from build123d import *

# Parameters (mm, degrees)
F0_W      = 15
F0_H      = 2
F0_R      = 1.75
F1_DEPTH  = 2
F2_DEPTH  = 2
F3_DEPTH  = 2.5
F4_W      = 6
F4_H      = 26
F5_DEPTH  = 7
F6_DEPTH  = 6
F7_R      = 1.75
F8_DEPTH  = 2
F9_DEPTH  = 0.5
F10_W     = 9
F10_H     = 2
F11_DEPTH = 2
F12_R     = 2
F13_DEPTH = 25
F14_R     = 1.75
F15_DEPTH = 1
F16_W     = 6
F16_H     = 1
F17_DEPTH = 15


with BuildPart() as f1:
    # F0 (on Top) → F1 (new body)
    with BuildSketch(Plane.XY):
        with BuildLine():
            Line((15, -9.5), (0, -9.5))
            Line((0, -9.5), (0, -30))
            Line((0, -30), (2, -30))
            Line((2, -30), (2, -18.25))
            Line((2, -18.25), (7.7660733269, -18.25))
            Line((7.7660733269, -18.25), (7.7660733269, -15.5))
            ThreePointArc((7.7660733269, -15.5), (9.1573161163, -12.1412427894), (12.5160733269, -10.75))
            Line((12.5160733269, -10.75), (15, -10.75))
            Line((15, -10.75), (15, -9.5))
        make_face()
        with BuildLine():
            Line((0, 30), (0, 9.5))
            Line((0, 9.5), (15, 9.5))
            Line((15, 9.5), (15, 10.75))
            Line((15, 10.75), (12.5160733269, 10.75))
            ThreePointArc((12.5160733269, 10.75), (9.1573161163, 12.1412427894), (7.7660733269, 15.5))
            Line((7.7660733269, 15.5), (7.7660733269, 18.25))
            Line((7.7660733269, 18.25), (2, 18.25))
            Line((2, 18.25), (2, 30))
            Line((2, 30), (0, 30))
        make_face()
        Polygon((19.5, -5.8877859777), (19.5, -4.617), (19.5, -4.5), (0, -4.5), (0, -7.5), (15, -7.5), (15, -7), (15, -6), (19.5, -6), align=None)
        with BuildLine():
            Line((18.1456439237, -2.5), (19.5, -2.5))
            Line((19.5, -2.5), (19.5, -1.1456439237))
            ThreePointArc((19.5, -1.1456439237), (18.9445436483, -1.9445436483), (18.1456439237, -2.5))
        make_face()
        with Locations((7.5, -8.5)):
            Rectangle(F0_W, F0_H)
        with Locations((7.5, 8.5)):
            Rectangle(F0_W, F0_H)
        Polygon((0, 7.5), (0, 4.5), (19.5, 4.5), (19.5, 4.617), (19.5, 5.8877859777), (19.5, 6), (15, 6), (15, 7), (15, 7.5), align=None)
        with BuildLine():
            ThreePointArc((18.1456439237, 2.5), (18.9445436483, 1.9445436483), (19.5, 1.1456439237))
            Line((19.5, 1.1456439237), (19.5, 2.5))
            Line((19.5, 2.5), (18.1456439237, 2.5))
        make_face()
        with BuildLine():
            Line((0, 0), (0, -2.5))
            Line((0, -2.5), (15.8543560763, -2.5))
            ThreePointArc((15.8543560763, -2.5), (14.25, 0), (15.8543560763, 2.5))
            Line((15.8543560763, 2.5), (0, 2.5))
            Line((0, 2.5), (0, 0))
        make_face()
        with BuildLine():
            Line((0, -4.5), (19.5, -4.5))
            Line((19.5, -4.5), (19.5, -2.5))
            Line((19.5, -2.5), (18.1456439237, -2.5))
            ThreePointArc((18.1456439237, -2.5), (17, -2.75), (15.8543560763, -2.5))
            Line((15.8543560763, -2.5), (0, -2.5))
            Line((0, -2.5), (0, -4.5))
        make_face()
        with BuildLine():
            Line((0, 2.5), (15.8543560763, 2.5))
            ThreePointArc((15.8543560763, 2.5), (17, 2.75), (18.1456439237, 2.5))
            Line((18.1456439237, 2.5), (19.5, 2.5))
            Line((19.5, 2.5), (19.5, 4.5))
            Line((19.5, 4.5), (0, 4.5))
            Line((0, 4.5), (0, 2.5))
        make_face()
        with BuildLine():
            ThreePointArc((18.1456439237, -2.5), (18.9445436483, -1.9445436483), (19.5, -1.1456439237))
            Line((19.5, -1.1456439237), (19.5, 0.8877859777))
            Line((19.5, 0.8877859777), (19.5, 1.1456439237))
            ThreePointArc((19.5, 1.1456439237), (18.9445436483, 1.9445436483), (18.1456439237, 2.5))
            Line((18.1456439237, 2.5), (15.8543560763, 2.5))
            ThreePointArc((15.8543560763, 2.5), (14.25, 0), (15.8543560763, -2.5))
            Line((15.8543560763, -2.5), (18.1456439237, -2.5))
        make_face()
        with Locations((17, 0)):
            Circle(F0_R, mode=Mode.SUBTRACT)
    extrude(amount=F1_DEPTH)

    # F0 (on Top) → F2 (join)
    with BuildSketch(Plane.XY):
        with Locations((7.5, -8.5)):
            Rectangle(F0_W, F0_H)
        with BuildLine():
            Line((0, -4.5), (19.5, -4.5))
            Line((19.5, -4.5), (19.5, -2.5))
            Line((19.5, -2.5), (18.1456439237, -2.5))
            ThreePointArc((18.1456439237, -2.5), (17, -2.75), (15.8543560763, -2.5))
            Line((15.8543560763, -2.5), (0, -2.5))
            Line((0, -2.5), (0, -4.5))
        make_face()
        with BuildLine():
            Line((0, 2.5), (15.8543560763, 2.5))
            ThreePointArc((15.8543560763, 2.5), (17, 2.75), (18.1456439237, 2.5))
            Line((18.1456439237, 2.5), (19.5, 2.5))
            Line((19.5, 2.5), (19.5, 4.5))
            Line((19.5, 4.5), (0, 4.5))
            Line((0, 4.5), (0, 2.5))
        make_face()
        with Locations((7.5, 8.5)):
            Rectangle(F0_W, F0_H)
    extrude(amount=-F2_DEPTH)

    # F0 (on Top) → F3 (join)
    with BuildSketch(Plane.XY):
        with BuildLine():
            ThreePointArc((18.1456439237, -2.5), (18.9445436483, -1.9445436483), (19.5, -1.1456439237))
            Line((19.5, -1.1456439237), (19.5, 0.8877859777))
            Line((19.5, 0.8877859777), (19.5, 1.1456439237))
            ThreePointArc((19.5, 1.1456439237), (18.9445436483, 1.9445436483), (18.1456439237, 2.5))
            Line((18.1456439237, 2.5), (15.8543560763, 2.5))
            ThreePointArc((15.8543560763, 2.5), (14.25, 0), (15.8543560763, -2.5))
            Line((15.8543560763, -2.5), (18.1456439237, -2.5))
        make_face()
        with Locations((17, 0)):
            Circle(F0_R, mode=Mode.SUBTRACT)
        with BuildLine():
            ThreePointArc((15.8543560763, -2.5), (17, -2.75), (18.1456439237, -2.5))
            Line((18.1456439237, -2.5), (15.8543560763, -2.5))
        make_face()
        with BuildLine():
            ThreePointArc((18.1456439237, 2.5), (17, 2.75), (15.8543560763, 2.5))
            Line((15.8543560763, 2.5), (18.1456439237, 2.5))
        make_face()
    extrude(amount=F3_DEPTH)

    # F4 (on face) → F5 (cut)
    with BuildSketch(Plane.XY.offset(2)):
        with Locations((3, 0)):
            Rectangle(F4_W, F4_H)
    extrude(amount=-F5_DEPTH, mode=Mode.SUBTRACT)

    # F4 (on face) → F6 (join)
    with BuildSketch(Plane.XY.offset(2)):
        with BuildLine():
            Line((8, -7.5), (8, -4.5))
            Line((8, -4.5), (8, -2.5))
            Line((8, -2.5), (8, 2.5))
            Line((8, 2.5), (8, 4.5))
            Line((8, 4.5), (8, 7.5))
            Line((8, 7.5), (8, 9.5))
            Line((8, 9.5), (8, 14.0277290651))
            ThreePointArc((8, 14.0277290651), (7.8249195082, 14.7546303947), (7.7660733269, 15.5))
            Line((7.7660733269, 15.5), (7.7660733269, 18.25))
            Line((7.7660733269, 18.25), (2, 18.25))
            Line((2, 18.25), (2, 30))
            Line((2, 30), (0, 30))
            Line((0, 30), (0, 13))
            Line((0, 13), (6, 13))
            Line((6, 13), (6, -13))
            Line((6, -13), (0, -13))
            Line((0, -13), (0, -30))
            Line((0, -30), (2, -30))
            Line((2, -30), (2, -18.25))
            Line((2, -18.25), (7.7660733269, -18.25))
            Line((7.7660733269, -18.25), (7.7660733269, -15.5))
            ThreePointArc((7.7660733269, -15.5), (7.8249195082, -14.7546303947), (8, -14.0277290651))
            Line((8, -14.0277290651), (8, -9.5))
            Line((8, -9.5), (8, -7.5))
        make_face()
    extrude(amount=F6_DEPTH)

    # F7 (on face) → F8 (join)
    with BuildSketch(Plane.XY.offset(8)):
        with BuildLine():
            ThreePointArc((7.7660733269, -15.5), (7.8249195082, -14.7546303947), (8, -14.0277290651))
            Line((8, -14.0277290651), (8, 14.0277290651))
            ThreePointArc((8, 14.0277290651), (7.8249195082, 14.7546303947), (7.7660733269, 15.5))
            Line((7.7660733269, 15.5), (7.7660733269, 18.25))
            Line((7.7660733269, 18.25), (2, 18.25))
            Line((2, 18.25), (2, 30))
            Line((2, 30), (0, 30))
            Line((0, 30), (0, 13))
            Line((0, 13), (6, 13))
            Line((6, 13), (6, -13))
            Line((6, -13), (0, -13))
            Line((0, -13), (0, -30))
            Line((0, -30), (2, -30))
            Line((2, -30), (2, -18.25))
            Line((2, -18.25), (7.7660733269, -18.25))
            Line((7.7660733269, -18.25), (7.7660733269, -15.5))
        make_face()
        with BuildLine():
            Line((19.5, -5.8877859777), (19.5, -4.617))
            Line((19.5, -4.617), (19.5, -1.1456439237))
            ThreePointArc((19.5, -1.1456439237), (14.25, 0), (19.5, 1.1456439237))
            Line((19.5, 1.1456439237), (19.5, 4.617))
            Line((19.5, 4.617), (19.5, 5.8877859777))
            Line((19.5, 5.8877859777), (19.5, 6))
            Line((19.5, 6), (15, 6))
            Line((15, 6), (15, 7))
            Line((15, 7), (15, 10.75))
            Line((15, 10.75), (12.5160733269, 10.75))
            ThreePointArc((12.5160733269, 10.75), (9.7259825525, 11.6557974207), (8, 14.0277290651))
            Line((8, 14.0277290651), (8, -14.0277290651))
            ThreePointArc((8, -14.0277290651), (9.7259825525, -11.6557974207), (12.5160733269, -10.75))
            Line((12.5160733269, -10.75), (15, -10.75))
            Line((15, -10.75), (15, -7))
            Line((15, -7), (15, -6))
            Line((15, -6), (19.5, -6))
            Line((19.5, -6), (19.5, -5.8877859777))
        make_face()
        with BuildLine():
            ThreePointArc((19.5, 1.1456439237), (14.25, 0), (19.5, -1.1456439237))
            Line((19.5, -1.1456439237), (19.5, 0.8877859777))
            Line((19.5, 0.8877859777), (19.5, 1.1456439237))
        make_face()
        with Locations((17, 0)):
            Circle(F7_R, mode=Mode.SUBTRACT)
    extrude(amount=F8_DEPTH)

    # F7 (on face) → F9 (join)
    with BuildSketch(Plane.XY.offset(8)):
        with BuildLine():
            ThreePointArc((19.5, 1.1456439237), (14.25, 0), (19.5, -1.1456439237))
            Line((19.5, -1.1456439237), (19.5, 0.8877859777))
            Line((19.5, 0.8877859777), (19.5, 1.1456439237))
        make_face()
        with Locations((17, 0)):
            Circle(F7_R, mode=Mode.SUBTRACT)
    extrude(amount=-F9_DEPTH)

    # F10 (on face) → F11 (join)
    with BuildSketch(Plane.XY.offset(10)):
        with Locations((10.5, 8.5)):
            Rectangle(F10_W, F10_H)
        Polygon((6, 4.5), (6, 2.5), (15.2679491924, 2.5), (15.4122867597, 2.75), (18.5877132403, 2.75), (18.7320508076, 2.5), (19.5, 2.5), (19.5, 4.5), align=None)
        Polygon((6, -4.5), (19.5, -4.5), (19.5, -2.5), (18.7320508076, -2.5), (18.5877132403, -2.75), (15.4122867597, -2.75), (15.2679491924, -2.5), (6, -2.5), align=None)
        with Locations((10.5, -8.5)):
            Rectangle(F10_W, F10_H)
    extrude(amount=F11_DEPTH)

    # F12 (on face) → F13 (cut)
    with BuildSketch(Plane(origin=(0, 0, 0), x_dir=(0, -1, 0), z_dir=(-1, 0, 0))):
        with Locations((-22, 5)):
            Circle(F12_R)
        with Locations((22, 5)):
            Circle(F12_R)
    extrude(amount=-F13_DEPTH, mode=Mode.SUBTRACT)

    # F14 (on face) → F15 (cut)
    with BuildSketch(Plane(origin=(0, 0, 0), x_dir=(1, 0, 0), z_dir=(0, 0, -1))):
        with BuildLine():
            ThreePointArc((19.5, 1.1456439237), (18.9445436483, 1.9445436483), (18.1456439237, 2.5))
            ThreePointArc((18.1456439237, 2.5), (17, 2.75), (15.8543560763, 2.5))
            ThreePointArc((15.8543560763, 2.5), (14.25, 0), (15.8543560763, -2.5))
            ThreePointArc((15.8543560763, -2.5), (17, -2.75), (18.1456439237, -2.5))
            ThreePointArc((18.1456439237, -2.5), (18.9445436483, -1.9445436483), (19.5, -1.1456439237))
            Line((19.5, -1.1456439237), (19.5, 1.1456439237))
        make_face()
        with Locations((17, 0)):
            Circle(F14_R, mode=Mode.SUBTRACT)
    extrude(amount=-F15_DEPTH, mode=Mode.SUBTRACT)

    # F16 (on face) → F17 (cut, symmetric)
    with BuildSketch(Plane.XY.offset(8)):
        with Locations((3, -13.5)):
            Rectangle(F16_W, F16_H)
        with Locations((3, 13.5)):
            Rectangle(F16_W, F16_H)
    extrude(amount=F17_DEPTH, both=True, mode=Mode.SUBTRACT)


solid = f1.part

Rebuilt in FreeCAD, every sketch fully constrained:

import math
import FreeCAD as App
import Part
import Sketcher
Q = App.Units.Quantity


def add_polygon(sketch, points):
    """Adds a closed chain of lines whose ends are joined by coincident constraints."""
    first, n = sketch.GeometryCount, len(points)
    for a, b in zip(points, points[1:] + points[:1]):
        sketch.addGeometry(Part.LineSegment(App.Vector(*a, 0), App.Vector(*b, 0)), False)
    for i in range(n):
        sketch.addConstraint(Sketcher.Constraint("Coincident", first + i, 2, first + (i + 1) % n, 1))

doc = App.newDocument("Part")
body = doc.addObject("PartDesign::Body", "Body")

# Sketch on XY plane
sketch1 = body.newObject("Sketcher::SketchObject", "Sketch")
sketch1.AttachmentSupport = (doc.getObject("XY_Plane"), [""])
sketch1.MapMode = "FlatFace"
sketch1.addGeometry(Part.LineSegment(App.Vector(0, 30, 0), App.Vector(0, -30, 0)), False)
sketch1.addGeometry(Part.LineSegment(App.Vector(0, -30, 0), App.Vector(2, -30, 0)), False)
sketch1.addGeometry(Part.LineSegment(App.Vector(2, -30, 0), App.Vector(2, -18.2, 0)), False)
sketch1.addGeometry(Part.LineSegment(App.Vector(2, -18.2, 0), App.Vector(7.8, -18.2, 0)), False)
sketch1.addGeometry(Part.LineSegment(App.Vector(7.8, -18.2, 0), App.Vector(7.8, -15.5, 0)), False)
sketch1.addGeometry(Part.ArcOfCircle(Part.Circle(App.Vector(12.5, -15.5, 0), App.Vector(0, 0, 1), 4.8), math.radians(90), math.radians(180)), False)
sketch1.addGeometry(Part.LineSegment(App.Vector(12.5, -10.8, 0), App.Vector(15, -10.8, 0)), False)
sketch1.addGeometry(Part.LineSegment(App.Vector(15, -10.8, 0), App.Vector(15, -6, 0)), False)
sketch1.addGeometry(Part.LineSegment(App.Vector(15, -6, 0), App.Vector(19.5, -6, 0)), False)
sketch1.addGeometry(Part.LineSegment(App.Vector(19.5, -6, 0), App.Vector(19.5, 6, 0)), False)
sketch1.addGeometry(Part.LineSegment(App.Vector(19.5, 6, 0), App.Vector(15, 6, 0)), False)
sketch1.addGeometry(Part.LineSegment(App.Vector(15, 6, 0), App.Vector(15, 10.8, 0)), False)
sketch1.addGeometry(Part.LineSegment(App.Vector(15, 10.8, 0), App.Vector(12.5, 10.8, 0)), False)
sketch1.addGeometry(Part.ArcOfCircle(Part.Circle(App.Vector(12.5, 15.5, 0), App.Vector(0, 0, 1), 4.8), math.radians(180), math.radians(270)), False)
sketch1.addGeometry(Part.LineSegment(App.Vector(7.8, 15.5, 0), App.Vector(7.8, 18.2, 0)), False)
sketch1.addGeometry(Part.LineSegment(App.Vector(7.8, 18.2, 0), App.Vector(2, 18.2, 0)), False)
sketch1.addGeometry(Part.LineSegment(App.Vector(2, 18.2, 0), App.Vector(2, 30, 0)), False)
sketch1.addGeometry(Part.LineSegment(App.Vector(2, 30, 0), App.Vector(0, 30, 0)), False)
sketch1.addGeometry(Part.ArcOfCircle(Part.Circle(App.Vector(17, 0, 0), App.Vector(0, 0, 1), 2.8), math.radians(-115), math.radians(-65)), False)
sketch1.addGeometry(Part.LineSegment(App.Vector(15.9, -2.5, 0), App.Vector(18.1, -2.5, 0)), False)
sketch1.addGeometry(Part.Circle(App.Vector(17, 0, 0), App.Vector(0, 0, 1), 1.8), False)
sketch1.addGeometry(Part.ArcOfCircle(Part.Circle(App.Vector(17, 0, 0), App.Vector(0, 0, 1), 2.8), math.radians(65), math.radians(115)), False)
sketch1.addGeometry(Part.LineSegment(App.Vector(18.1, 2.5, 0), App.Vector(15.9, 2.5, 0)), False)
sketch1.addConstraint(Sketcher.Constraint("Coincident", 0, 2, 1, 1))
sketch1.addConstraint(Sketcher.Constraint("Coincident", 1, 2, 2, 1))
sketch1.addConstraint(Sketcher.Constraint("Coincident", 2, 2, 3, 1))
sketch1.addConstraint(Sketcher.Constraint("Coincident", 3, 2, 4, 1))
sketch1.addConstraint(Sketcher.Constraint("Tangent", 4, 2, 5, 2))
sketch1.addConstraint(Sketcher.Constraint("Tangent", 5, 1, 6, 1))
sketch1.addConstraint(Sketcher.Constraint("Coincident", 6, 2, 7, 1))
sketch1.addConstraint(Sketcher.Constraint("Coincident", 7, 2, 8, 1))
sketch1.addConstraint(Sketcher.Constraint("Coincident", 8, 2, 9, 1))
sketch1.addConstraint(Sketcher.Constraint("Coincident", 9, 2, 10, 1))
sketch1.addConstraint(Sketcher.Constraint("Coincident", 10, 2, 11, 1))
sketch1.addConstraint(Sketcher.Constraint("Coincident", 11, 2, 12, 1))
sketch1.addConstraint(Sketcher.Constraint("Tangent", 12, 2, 13, 2))
sketch1.addConstraint(Sketcher.Constraint("Tangent", 13, 1, 14, 1))
sketch1.addConstraint(Sketcher.Constraint("Coincident", 14, 2, 15, 1))
sketch1.addConstraint(Sketcher.Constraint("Coincident", 15, 2, 16, 1))
sketch1.addConstraint(Sketcher.Constraint("Coincident", 16, 2, 17, 1))
sketch1.addConstraint(Sketcher.Constraint("Coincident", 17, 2, 0, 1))
sketch1.addConstraint(Sketcher.Constraint("Coincident", 18, 1, 19, 1))
sketch1.addConstraint(Sketcher.Constraint("Coincident", 19, 2, 18, 2))
sketch1.addConstraint(Sketcher.Constraint("Coincident", 21, 1, 22, 1))
sketch1.addConstraint(Sketcher.Constraint("Coincident", 22, 2, 21, 2))
sketch1.addConstraint(Sketcher.Constraint("Vertical", 0))
sketch1.addConstraint(Sketcher.Constraint("Horizontal", 1))
sketch1.addConstraint(Sketcher.Constraint("Vertical", 2))
sketch1.addConstraint(Sketcher.Constraint("Horizontal", 3))
sketch1.addConstraint(Sketcher.Constraint("Vertical", 4))
sketch1.addConstraint(Sketcher.Constraint("Horizontal", 6))
sketch1.addConstraint(Sketcher.Constraint("Vertical", 7))
sketch1.addConstraint(Sketcher.Constraint("Horizontal", 8))
sketch1.addConstraint(Sketcher.Constraint("Vertical", 9))
sketch1.addConstraint(Sketcher.Constraint("Horizontal", 10))
sketch1.addConstraint(Sketcher.Constraint("Vertical", 11))
sketch1.addConstraint(Sketcher.Constraint("Horizontal", 12))
sketch1.addConstraint(Sketcher.Constraint("Vertical", 14))
sketch1.addConstraint(Sketcher.Constraint("Horizontal", 15))
sketch1.addConstraint(Sketcher.Constraint("Vertical", 16))
sketch1.addConstraint(Sketcher.Constraint("Horizontal", 17))
sketch1.addConstraint(Sketcher.Constraint("Horizontal", 19))
sketch1.addConstraint(Sketcher.Constraint("Horizontal", 22))
sketch1.addConstraint(Sketcher.Constraint("Coincident", 20, 3, 18, 3))
sketch1.addConstraint(Sketcher.Constraint("Coincident", 21, 3, 18, 3))
sketch1.addConstraint(Sketcher.Constraint("Equal", 5, 13))
sketch1.addConstraint(Sketcher.Constraint("Equal", 18, 21))
sketch1.addConstraint(Sketcher.Constraint("Symmetric", 0, 2, 17, 2, -1, 1))
sketch1.addConstraint(Sketcher.Constraint("Symmetric", 5, 3, 13, 3, -1))
sketch1.addConstraint(Sketcher.Constraint("Symmetric", 7, 2, 10, 2, -1))
sketch1.addConstraint(Sketcher.Constraint("Symmetric", 2, 2, 15, 2, -1))
sketch1.addConstraint(Sketcher.Constraint("Symmetric", 19, 2, 21, 1, -1))
sketch1.addConstraint(Sketcher.Constraint("Diameter", 20, Q("3.5 mm")))
sketch1.addConstraint(Sketcher.Constraint("DistanceX", 1, 1, 1, 2, Q("2 mm")))
sketch1.addConstraint(Sketcher.Constraint("DistanceY", 0, 2, 0, 1, Q("60 mm")))
sketch1.addConstraint(Sketcher.Constraint("DistanceY", 9, 1, 9, 2, Q("12 mm")))
sketch1.addConstraint(Sketcher.Constraint("Radius", 5, Q("4.75 mm")))
sketch1.addConstraint(Sketcher.Constraint("Radius", 18, Q("2.75 mm")))
sketch1.addConstraint(Sketcher.Constraint("DistanceX", 8, 1, 8, 2, Q("4.5 mm")))
sketch1.addConstraint(Sketcher.Constraint("DistanceX", -1, 1, 18, 3, Q("17 mm")))
sketch1.addConstraint(Sketcher.Constraint("DistanceX", -1, 1, 6, 2, Q("15 mm")))
sketch1.addConstraint(Sketcher.Constraint("DistanceY", 5, 3, 13, 3, Q("31 mm")))
sketch1.addConstraint(Sketcher.Constraint("DistanceY", 2, 1, 2, 2, Q("11.75 mm")))
sketch1.addConstraint(Sketcher.Constraint("DistanceY", 18, 1, -1, 1, Q("2.5 mm")))
sketch1.addConstraint(Sketcher.Constraint("DistanceX", 3, 1, 3, 2, Q("5.766073 mm")))
pad1 = body.newObject("PartDesign::Pad", "Pad")
pad1.Profile = sketch1
pad1.Length = 2

# Sketch on XY plane
sketch2 = body.newObject("Sketcher::SketchObject", "Sketch001")
sketch2.AttachmentSupport = (doc.getObject("XY_Plane"), [""])
sketch2.MapMode = "FlatFace"
add_polygon(sketch2, [(0, -7.5), (0, -9.5), (15, -9.5), (15, -7.5)])  # lines 0-3
sketch2.addGeometry(Part.LineSegment(App.Vector(0, -4.5, 0), App.Vector(19.5, -4.5, 0)), False)  # 4
sketch2.addGeometry(Part.LineSegment(App.Vector(19.5, -4.5, 0), App.Vector(19.5, -2.5, 0)), False)  # 5
sketch2.addGeometry(Part.LineSegment(App.Vector(19.5, -2.5, 0), App.Vector(18.1, -2.5, 0)), False)  # 6
sketch2.addGeometry(Part.ArcOfCircle(Part.Circle(App.Vector(17, 0, 0), App.Vector(0, 0, 1), 2.8), math.radians(-115), math.radians(-65)), False)  # 7
sketch2.addGeometry(Part.LineSegment(App.Vector(15.9, -2.5, 0), App.Vector(0, -2.5, 0)), False)  # 8
sketch2.addGeometry(Part.LineSegment(App.Vector(0, -2.5, 0), App.Vector(0, -4.5, 0)), False)  # 9
sketch2.addGeometry(Part.LineSegment(App.Vector(0, 2.5, 0), App.Vector(15.9, 2.5, 0)), False)  # 10
sketch2.addGeometry(Part.ArcOfCircle(Part.Circle(App.Vector(17, 0, 0), App.Vector(0, 0, 1), 2.8), math.radians(65), math.radians(115)), False)  # 11
sketch2.addGeometry(Part.LineSegment(App.Vector(18.1, 2.5, 0), App.Vector(19.5, 2.5, 0)), False)  # 12
sketch2.addGeometry(Part.LineSegment(App.Vector(19.5, 2.5, 0), App.Vector(19.5, 4.5, 0)), False)  # 13
sketch2.addGeometry(Part.LineSegment(App.Vector(19.5, 4.5, 0), App.Vector(0, 4.5, 0)), False)  # 14
sketch2.addGeometry(Part.LineSegment(App.Vector(0, 4.5, 0), App.Vector(0, 2.5, 0)), False)  # 15
add_polygon(sketch2, [(0, 9.5), (0, 7.5), (15, 7.5), (15, 9.5)])  # lines 16-19
sketch2.addConstraint(Sketcher.Constraint("Coincident", 4, 2, 5, 1))
sketch2.addConstraint(Sketcher.Constraint("Coincident", 5, 2, 6, 1))
sketch2.addConstraint(Sketcher.Constraint("Coincident", 6, 2, 7, 2))
sketch2.addConstraint(Sketcher.Constraint("Coincident", 7, 1, 8, 1))
sketch2.addConstraint(Sketcher.Constraint("Coincident", 8, 2, 9, 1))
sketch2.addConstraint(Sketcher.Constraint("Coincident", 9, 2, 4, 1))
sketch2.addConstraint(Sketcher.Constraint("Coincident", 10, 2, 11, 2))
sketch2.addConstraint(Sketcher.Constraint("Coincident", 11, 1, 12, 1))
sketch2.addConstraint(Sketcher.Constraint("Coincident", 12, 2, 13, 1))
sketch2.addConstraint(Sketcher.Constraint("Coincident", 13, 2, 14, 1))
sketch2.addConstraint(Sketcher.Constraint("Coincident", 14, 2, 15, 1))
sketch2.addConstraint(Sketcher.Constraint("Coincident", 15, 2, 10, 1))
sketch2.addConstraint(Sketcher.Constraint("Vertical", 0))
sketch2.addConstraint(Sketcher.Constraint("Horizontal", 1))
sketch2.addConstraint(Sketcher.Constraint("Vertical", 2))
sketch2.addConstraint(Sketcher.Constraint("Horizontal", 3))
sketch2.addConstraint(Sketcher.Constraint("Horizontal", 4))
sketch2.addConstraint(Sketcher.Constraint("Vertical", 5))
sketch2.addConstraint(Sketcher.Constraint("Horizontal", 6))
sketch2.addConstraint(Sketcher.Constraint("Horizontal", 8))
sketch2.addConstraint(Sketcher.Constraint("Vertical", 9))
sketch2.addConstraint(Sketcher.Constraint("Horizontal", 10))
sketch2.addConstraint(Sketcher.Constraint("Horizontal", 12))
sketch2.addConstraint(Sketcher.Constraint("Vertical", 13))
sketch2.addConstraint(Sketcher.Constraint("Horizontal", 14))
sketch2.addConstraint(Sketcher.Constraint("Vertical", 15))
sketch2.addConstraint(Sketcher.Constraint("Vertical", 16))
sketch2.addConstraint(Sketcher.Constraint("Horizontal", 17))
sketch2.addConstraint(Sketcher.Constraint("Vertical", 18))
sketch2.addConstraint(Sketcher.Constraint("Horizontal", 19))
sketch2.addConstraint(Sketcher.Constraint("Coincident", 11, 3, 7, 3))
sketch2.addConstraint(Sketcher.Constraint("Equal", 7, 11))
sketch2.addConstraint(Sketcher.Constraint("Symmetric", 9, 2, 14, 2, -1, 1))
sketch2.addConstraint(Sketcher.Constraint("Symmetric", 3, 2, 16, 2, -1, 1))
sketch2.addConstraint(Sketcher.Constraint("Symmetric", 7, 1, 10, 2, -1))
sketch2.addConstraint(Sketcher.Constraint("Symmetric", 5, 2, 12, 2, -1))
sketch2.addConstraint(Sketcher.Constraint("Symmetric", 1, 2, 18, 2, -1))
sketch2.addConstraint(Sketcher.Constraint("PointOnObject", 0, 2, -2))
sketch2.addConstraint(Sketcher.Constraint("PointOnObject", 8, 2, -2))
sketch2.addConstraint(Sketcher.Constraint("Horizontal", 6, 2, 7, 1))
sketch2.addConstraint(Sketcher.Constraint("Equal", 2, 5))
sketch2.addConstraint(Sketcher.Constraint("DistanceX", 1, 1, 1, 2, Q("15 mm")))
sketch2.addConstraint(Sketcher.Constraint("DistanceY", 0, 2, 0, 1, Q("2 mm")))
sketch2.addConstraint(Sketcher.Constraint("Radius", 7, Q("2.75 mm")))
sketch2.addConstraint(Sketcher.Constraint("DistanceX", 4, 1, 4, 2, Q("19.5 mm")))
sketch2.addConstraint(Sketcher.Constraint("DistanceX", -1, 1, 7, 3, Q("17 mm")))
sketch2.addConstraint(Sketcher.Constraint("DistanceY", 2, 2, 4, 2, Q("3 mm")))
sketch2.addConstraint(Sketcher.Constraint("DistanceY", 7, 1, 10, 2, Q("5 mm")))
pad2 = body.newObject("PartDesign::Pad", "Pad001")
pad2.Profile = sketch2
pad2.Length = 2
pad2.Reversed = True

# Sketch on XY plane
sketch3 = body.newObject("Sketcher::SketchObject", "Sketch002")
sketch3.AttachmentSupport = (doc.getObject("XY_Plane"), [""])
sketch3.MapMode = "FlatFace"
sketch3.addGeometry(Part.ArcOfCircle(Part.Circle(App.Vector(17, 0, 0), App.Vector(0, 0, 1), 2.7), math.radians(-65), math.radians(-25)), False)
sketch3.addGeometry(Part.LineSegment(App.Vector(19.5, -1.1, 0), App.Vector(19.5, 1.1, 0)), False)
sketch3.addGeometry(Part.ArcOfCircle(Part.Circle(App.Vector(17, 0, 0), App.Vector(0, 0, 1), 2.7), math.radians(25), math.radians(65)), False)
sketch3.addGeometry(Part.ArcOfCircle(Part.Circle(App.Vector(17, 0, 0), App.Vector(0, 0, 1), 2.8), math.radians(65), math.radians(115)), False)
sketch3.addGeometry(Part.ArcOfCircle(Part.Circle(App.Vector(17, 0, 0), App.Vector(0, 0, 1), 2.8), math.radians(115), math.radians(245)), False)
sketch3.addGeometry(Part.ArcOfCircle(Part.Circle(App.Vector(17, 0, 0), App.Vector(0, 0, 1), 2.8), math.radians(-115), math.radians(-65)), False)
sketch3.addGeometry(Part.Circle(App.Vector(17, 0, 0), App.Vector(0, 0, 1), 1.8), False)
sketch3.addConstraint(Sketcher.Constraint("Coincident", 0, 2, 1, 1))
sketch3.addConstraint(Sketcher.Constraint("Coincident", 1, 2, 2, 1))
sketch3.addConstraint(Sketcher.Constraint("Tangent", 2, 2, 3, 1))
sketch3.addConstraint(Sketcher.Constraint("Tangent", 3, 2, 4, 1))
sketch3.addConstraint(Sketcher.Constraint("Tangent", 4, 2, 5, 1))
sketch3.addConstraint(Sketcher.Constraint("Tangent", 5, 2, 0, 1))
sketch3.addConstraint(Sketcher.Constraint("Vertical", 1))
sketch3.addConstraint(Sketcher.Constraint("Coincident", 2, 3, 0, 3))
sketch3.addConstraint(Sketcher.Constraint("Coincident", 4, 3, 0, 3))
sketch3.addConstraint(Sketcher.Constraint("Coincident", 6, 3, 0, 3))
sketch3.addConstraint(Sketcher.Constraint("Symmetric", 3, 2, 4, 2, -1))
sketch3.addConstraint(Sketcher.Constraint("Horizontal", 2, 2, 3, 2))
sketch3.addConstraint(Sketcher.Constraint("Horizontal", 4, 2, 5, 2))
sketch3.addConstraint(Sketcher.Constraint("Diameter", 6, Q("3.5 mm")))
sketch3.addConstraint(Sketcher.Constraint("Radius", 0, Q("2.75 mm")))
sketch3.addConstraint(Sketcher.Constraint("DistanceX", -1, 1, 0, 3, Q("17 mm")))
sketch3.addConstraint(Sketcher.Constraint("DistanceX", -1, 1, 0, 2, Q("19.5 mm")))
sketch3.addConstraint(Sketcher.Constraint("DistanceY", -1, 1, 2, 2, Q("2.5 mm")))
pad3 = body.newObject("PartDesign::Pad", "Pad002")
pad3.Profile = sketch3
pad3.Length = 2.5

# Sketch on XY plane
sketch4 = body.newObject("Sketcher::SketchObject", "Sketch003")
sketch4.AttachmentSupport = (doc.getObject("XY_Plane"), [""])
sketch4.MapMode = "FlatFace"
sketch4.AttachmentOffset = App.Placement(App.Vector(0, 0, 2), App.Rotation())
add_polygon(sketch4, [(0, 13), (0, -13), (6, -13), (6, 13)])  # lines 0-3
sketch4.addConstraint(Sketcher.Constraint("Vertical", 0))
sketch4.addConstraint(Sketcher.Constraint("Horizontal", 1))
sketch4.addConstraint(Sketcher.Constraint("Vertical", 2))
sketch4.addConstraint(Sketcher.Constraint("Horizontal", 3))
sketch4.addConstraint(Sketcher.Constraint("Symmetric", 0, 2, 3, 2, -1, 1))
sketch4.addConstraint(Sketcher.Constraint("DistanceX", 1, 1, 1, 2, Q("6 mm")))
sketch4.addConstraint(Sketcher.Constraint("DistanceY", 0, 2, 0, 1, Q("26 mm")))
pocket1 = body.newObject("PartDesign::Pocket", "Pocket")
pocket1.Profile = sketch4
pocket1.Length = 7

# Sketch on XY plane
sketch5 = body.newObject("Sketcher::SketchObject", "Sketch004")
sketch5.AttachmentSupport = (doc.getObject("XY_Plane"), [""])
sketch5.MapMode = "FlatFace"
sketch5.AttachmentOffset = App.Placement(App.Vector(0, 0, 2), App.Rotation())
sketch5.addGeometry(Part.ArcOfCircle(Part.Circle(App.Vector(12.5, 15.5, 0), App.Vector(0, 0, 1), 4.8), math.radians(-180), math.radians(-161.94)), False)
sketch5.addGeometry(Part.LineSegment(App.Vector(7.8, 15.5, 0), App.Vector(7.8, 18.2, 0)), False)
sketch5.addGeometry(Part.LineSegment(App.Vector(7.8, 18.2, 0), App.Vector(2, 18.2, 0)), False)
sketch5.addGeometry(Part.LineSegment(App.Vector(2, 18.2, 0), App.Vector(2, 30, 0)), False)
sketch5.addGeometry(Part.LineSegment(App.Vector(2, 30, 0), App.Vector(0, 30, 0)), False)
sketch5.addGeometry(Part.LineSegment(App.Vector(0, 30, 0), App.Vector(0, 13, 0)), False)
sketch5.addGeometry(Part.LineSegment(App.Vector(0, 13, 0), App.Vector(6, 13, 0)), False)
sketch5.addGeometry(Part.LineSegment(App.Vector(6, 13, 0), App.Vector(6, -13, 0)), False)
sketch5.addGeometry(Part.LineSegment(App.Vector(6, -13, 0), App.Vector(0, -13, 0)), False)
sketch5.addGeometry(Part.LineSegment(App.Vector(0, -13, 0), App.Vector(0, -30, 0)), False)
sketch5.addGeometry(Part.LineSegment(App.Vector(0, -30, 0), App.Vector(2, -30, 0)), False)
sketch5.addGeometry(Part.LineSegment(App.Vector(2, -30, 0), App.Vector(2, -18.2, 0)), False)
sketch5.addGeometry(Part.LineSegment(App.Vector(2, -18.2, 0), App.Vector(7.8, -18.2, 0)), False)
sketch5.addGeometry(Part.LineSegment(App.Vector(7.8, -18.2, 0), App.Vector(7.8, -15.5, 0)), False)
sketch5.addGeometry(Part.ArcOfCircle(Part.Circle(App.Vector(12.5, -15.5, 0), App.Vector(0, 0, 1), 4.8), math.radians(161.94), math.radians(180)), False)
sketch5.addGeometry(Part.LineSegment(App.Vector(8, -14, 0), App.Vector(8, 14, 0)), False)
sketch5.addConstraint(Sketcher.Constraint("Tangent", 0, 1, 1, 1))
sketch5.addConstraint(Sketcher.Constraint("Coincident", 1, 2, 2, 1))
sketch5.addConstraint(Sketcher.Constraint("Coincident", 2, 2, 3, 1))
sketch5.addConstraint(Sketcher.Constraint("Coincident", 3, 2, 4, 1))
sketch5.addConstraint(Sketcher.Constraint("Coincident", 4, 2, 5, 1))
sketch5.addConstraint(Sketcher.Constraint("Coincident", 5, 2, 6, 1))
sketch5.addConstraint(Sketcher.Constraint("Coincident", 6, 2, 7, 1))
sketch5.addConstraint(Sketcher.Constraint("Coincident", 7, 2, 8, 1))
sketch5.addConstraint(Sketcher.Constraint("Coincident", 8, 2, 9, 1))
sketch5.addConstraint(Sketcher.Constraint("Coincident", 9, 2, 10, 1))
sketch5.addConstraint(Sketcher.Constraint("Coincident", 10, 2, 11, 1))
sketch5.addConstraint(Sketcher.Constraint("Coincident", 11, 2, 12, 1))
sketch5.addConstraint(Sketcher.Constraint("Coincident", 12, 2, 13, 1))
sketch5.addConstraint(Sketcher.Constraint("Tangent", 13, 2, 14, 2))
sketch5.addConstraint(Sketcher.Constraint("Coincident", 14, 1, 15, 1))
sketch5.addConstraint(Sketcher.Constraint("Coincident", 15, 2, 0, 2))
sketch5.addConstraint(Sketcher.Constraint("Vertical", 1))
sketch5.addConstraint(Sketcher.Constraint("Horizontal", 2))
sketch5.addConstraint(Sketcher.Constraint("Vertical", 3))
sketch5.addConstraint(Sketcher.Constraint("Horizontal", 4))
sketch5.addConstraint(Sketcher.Constraint("Vertical", 5))
sketch5.addConstraint(Sketcher.Constraint("Horizontal", 6))
sketch5.addConstraint(Sketcher.Constraint("Vertical", 7))
sketch5.addConstraint(Sketcher.Constraint("Horizontal", 8))
sketch5.addConstraint(Sketcher.Constraint("Vertical", 9))
sketch5.addConstraint(Sketcher.Constraint("Horizontal", 10))
sketch5.addConstraint(Sketcher.Constraint("Vertical", 11))
sketch5.addConstraint(Sketcher.Constraint("Horizontal", 12))
sketch5.addConstraint(Sketcher.Constraint("Vertical", 13))
sketch5.addConstraint(Sketcher.Constraint("Vertical", 15))
sketch5.addConstraint(Sketcher.Constraint("Equal", 0, 14))
sketch5.addConstraint(Sketcher.Constraint("Symmetric", 5, 2, 8, 2, -1, 1))
sketch5.addConstraint(Sketcher.Constraint("Symmetric", 0, 3, 14, 3, -1))
sketch5.addConstraint(Sketcher.Constraint("Symmetric", 4, 2, 9, 2, -1))
sketch5.addConstraint(Sketcher.Constraint("Symmetric", 2, 2, 11, 2, -1))
sketch5.addConstraint(Sketcher.Constraint("DistanceX", 4, 2, 4, 1, Q("2 mm")))
sketch5.addConstraint(Sketcher.Constraint("DistanceX", 6, 1, 6, 2, Q("6 mm")))
sketch5.addConstraint(Sketcher.Constraint("DistanceY", 5, 2, 5, 1, Q("17 mm")))
sketch5.addConstraint(Sketcher.Constraint("DistanceY", 7, 2, 7, 1, Q("26 mm")))
sketch5.addConstraint(Sketcher.Constraint("Radius", 0, Q("4.75 mm")))
sketch5.addConstraint(Sketcher.Constraint("DistanceX", -1, 1, 14, 1, Q("8 mm")))
sketch5.addConstraint(Sketcher.Constraint("DistanceY", 14, 3, 0, 3, Q("31 mm")))
sketch5.addConstraint(Sketcher.Constraint("DistanceY", 1, 1, 1, 2, Q("2.75 mm")))
sketch5.addConstraint(Sketcher.Constraint("DistanceY", 15, 1, 15, 2, Q("28.055458 mm")))
pad4 = body.newObject("PartDesign::Pad", "Pad003")
pad4.Profile = sketch5
pad4.Length = 6

# Sketch on XY plane
sketch6 = body.newObject("Sketcher::SketchObject", "Sketch005")
sketch6.AttachmentSupport = (doc.getObject("XY_Plane"), [""])
sketch6.MapMode = "FlatFace"
sketch6.AttachmentOffset = App.Placement(App.Vector(0, 0, 8), App.Rotation())
sketch6.addGeometry(Part.LineSegment(App.Vector(7.8, -18.2, 0), App.Vector(7.8, -15.5, 0)), False)
sketch6.addGeometry(Part.ArcOfCircle(Part.Circle(App.Vector(12.5, -15.5, 0), App.Vector(0, 0, 1), 4.8), math.radians(161.94), math.radians(180)), False)
sketch6.addGeometry(Part.ArcOfCircle(Part.Circle(App.Vector(12.5, -15.5, 0), App.Vector(0, 0, 1), 4.8), math.radians(90), math.radians(162)), False)
sketch6.addGeometry(Part.LineSegment(App.Vector(12.5, -10.8, 0), App.Vector(15, -10.8, 0)), False)
sketch6.addGeometry(Part.LineSegment(App.Vector(15, -10.8, 0), App.Vector(15, -6, 0)), False)
sketch6.addGeometry(Part.LineSegment(App.Vector(15, -6, 0), App.Vector(19.5, -6, 0)), False)
sketch6.addGeometry(Part.LineSegment(App.Vector(19.5, -6, 0), App.Vector(19.5, 6, 0)), False)
sketch6.addGeometry(Part.LineSegment(App.Vector(19.5, 6, 0), App.Vector(15, 6, 0)), False)
sketch6.addGeometry(Part.LineSegment(App.Vector(15, 6, 0), App.Vector(15, 10.8, 0)), False)
sketch6.addGeometry(Part.LineSegment(App.Vector(15, 10.8, 0), App.Vector(12.5, 10.8, 0)), False)
sketch6.addGeometry(Part.ArcOfCircle(Part.Circle(App.Vector(12.5, 15.5, 0), App.Vector(0, 0, 1), 4.8), math.radians(-162), math.radians(-90)), False)
sketch6.addGeometry(Part.ArcOfCircle(Part.Circle(App.Vector(12.5, 15.5, 0), App.Vector(0, 0, 1), 4.8), math.radians(-180), math.radians(-161.94)), False)
sketch6.addGeometry(Part.LineSegment(App.Vector(7.8, 15.5, 0), App.Vector(7.8, 18.2, 0)), False)
sketch6.addGeometry(Part.LineSegment(App.Vector(7.8, 18.2, 0), App.Vector(2, 18.2, 0)), False)
sketch6.addGeometry(Part.LineSegment(App.Vector(2, 18.2, 0), App.Vector(2, 30, 0)), False)
sketch6.addGeometry(Part.LineSegment(App.Vector(2, 30, 0), App.Vector(0, 30, 0)), False)
sketch6.addGeometry(Part.LineSegment(App.Vector(0, 30, 0), App.Vector(0, 13, 0)), False)
sketch6.addGeometry(Part.LineSegment(App.Vector(0, 13, 0), App.Vector(6, 13, 0)), False)
sketch6.addGeometry(Part.LineSegment(App.Vector(6, 13, 0), App.Vector(6, -13, 0)), False)
sketch6.addGeometry(Part.LineSegment(App.Vector(6, -13, 0), App.Vector(0, -13, 0)), False)
sketch6.addGeometry(Part.LineSegment(App.Vector(0, -13, 0), App.Vector(0, -30, 0)), False)
sketch6.addGeometry(Part.LineSegment(App.Vector(0, -30, 0), App.Vector(2, -30, 0)), False)
sketch6.addGeometry(Part.LineSegment(App.Vector(2, -30, 0), App.Vector(2, -18.2, 0)), False)
sketch6.addGeometry(Part.LineSegment(App.Vector(2, -18.2, 0), App.Vector(7.8, -18.2, 0)), False)
sketch6.addGeometry(Part.Circle(App.Vector(17, 0, 0), App.Vector(0, 0, 1), 1.8), False)
sketch6.addConstraint(Sketcher.Constraint("Tangent", 0, 2, 1, 2))
sketch6.addConstraint(Sketcher.Constraint("Tangent", 1, 1, 2, 2))
sketch6.addConstraint(Sketcher.Constraint("Tangent", 2, 1, 3, 1))
sketch6.addConstraint(Sketcher.Constraint("Coincident", 3, 2, 4, 1))
sketch6.addConstraint(Sketcher.Constraint("Coincident", 4, 2, 5, 1))
sketch6.addConstraint(Sketcher.Constraint("Coincident", 5, 2, 6, 1))
sketch6.addConstraint(Sketcher.Constraint("Coincident", 6, 2, 7, 1))
sketch6.addConstraint(Sketcher.Constraint("Coincident", 7, 2, 8, 1))
sketch6.addConstraint(Sketcher.Constraint("Coincident", 8, 2, 9, 1))
sketch6.addConstraint(Sketcher.Constraint("Tangent", 9, 2, 10, 2))
sketch6.addConstraint(Sketcher.Constraint("Tangent", 10, 1, 11, 2))
sketch6.addConstraint(Sketcher.Constraint("Tangent", 11, 1, 12, 1))
sketch6.addConstraint(Sketcher.Constraint("Coincident", 12, 2, 13, 1))
sketch6.addConstraint(Sketcher.Constraint("Coincident", 13, 2, 14, 1))
sketch6.addConstraint(Sketcher.Constraint("Coincident", 14, 2, 15, 1))
sketch6.addConstraint(Sketcher.Constraint("Coincident", 15, 2, 16, 1))
sketch6.addConstraint(Sketcher.Constraint("Coincident", 16, 2, 17, 1))
sketch6.addConstraint(Sketcher.Constraint("Coincident", 17, 2, 18, 1))
sketch6.addConstraint(Sketcher.Constraint("Coincident", 18, 2, 19, 1))
sketch6.addConstraint(Sketcher.Constraint("Coincident", 19, 2, 20, 1))
sketch6.addConstraint(Sketcher.Constraint("Coincident", 20, 2, 21, 1))
sketch6.addConstraint(Sketcher.Constraint("Coincident", 21, 2, 22, 1))
sketch6.addConstraint(Sketcher.Constraint("Coincident", 22, 2, 23, 1))
sketch6.addConstraint(Sketcher.Constraint("Coincident", 23, 2, 0, 1))
sketch6.addConstraint(Sketcher.Constraint("Vertical", 0))
sketch6.addConstraint(Sketcher.Constraint("Horizontal", 3))
sketch6.addConstraint(Sketcher.Constraint("Vertical", 4))
sketch6.addConstraint(Sketcher.Constraint("Horizontal", 5))
sketch6.addConstraint(Sketcher.Constraint("Vertical", 6))
sketch6.addConstraint(Sketcher.Constraint("Horizontal", 7))
sketch6.addConstraint(Sketcher.Constraint("Vertical", 8))
sketch6.addConstraint(Sketcher.Constraint("Horizontal", 9))
sketch6.addConstraint(Sketcher.Constraint("Vertical", 12))
sketch6.addConstraint(Sketcher.Constraint("Horizontal", 13))
sketch6.addConstraint(Sketcher.Constraint("Vertical", 14))
sketch6.addConstraint(Sketcher.Constraint("Horizontal", 15))
sketch6.addConstraint(Sketcher.Constraint("Vertical", 16))
sketch6.addConstraint(Sketcher.Constraint("Horizontal", 17))
sketch6.addConstraint(Sketcher.Constraint("Vertical", 18))
sketch6.addConstraint(Sketcher.Constraint("Horizontal", 19))
sketch6.addConstraint(Sketcher.Constraint("Vertical", 20))
sketch6.addConstraint(Sketcher.Constraint("Horizontal", 21))
sketch6.addConstraint(Sketcher.Constraint("Vertical", 22))
sketch6.addConstraint(Sketcher.Constraint("Horizontal", 23))
sketch6.addConstraint(Sketcher.Constraint("Equal", 1, 2))
sketch6.addConstraint(Sketcher.Constraint("Equal", 2, 10))
sketch6.addConstraint(Sketcher.Constraint("Equal", 10, 11))
sketch6.addConstraint(Sketcher.Constraint("Symmetric", 16, 2, 19, 2, -1, 1))
sketch6.addConstraint(Sketcher.Constraint("Symmetric", 1, 3, 10, 3, -1))
sketch6.addConstraint(Sketcher.Constraint("Symmetric", 4, 2, 7, 2, -1))
sketch6.addConstraint(Sketcher.Constraint("Symmetric", 15, 2, 20, 2, -1))
sketch6.addConstraint(Sketcher.Constraint("Symmetric", 13, 2, 22, 2, -1))
sketch6.addConstraint(Sketcher.Constraint("PointOnObject", 24, 3, -1))
sketch6.addConstraint(Sketcher.Constraint("Vertical", 1, 1, 10, 1))
sketch6.addConstraint(Sketcher.Constraint("Diameter", 24, Q("3.5 mm")))
sketch6.addConstraint(Sketcher.Constraint("DistanceX", 15, 2, 15, 1, Q("2 mm")))
sketch6.addConstraint(Sketcher.Constraint("DistanceX", 17, 1, 17, 2, Q("6 mm")))
sketch6.addConstraint(Sketcher.Constraint("DistanceY", 6, 1, 6, 2, Q("12 mm")))
sketch6.addConstraint(Sketcher.Constraint("DistanceY", 16, 2, 16, 1, Q("17 mm")))
sketch6.addConstraint(Sketcher.Constraint("DistanceY", 18, 2, 18, 1, Q("26 mm")))
sketch6.addConstraint(Sketcher.Constraint("Radius", 1, Q("4.75 mm")))
sketch6.addConstraint(Sketcher.Constraint("DistanceX", 5, 1, 5, 2, Q("4.5 mm")))
sketch6.addConstraint(Sketcher.Constraint("DistanceX", -1, 1, 24, 3, Q("17 mm")))
sketch6.addConstraint(Sketcher.Constraint("DistanceX", -1, 1, 1, 1, Q("8 mm")))
sketch6.addConstraint(Sketcher.Constraint("DistanceX", -1, 1, 3, 2, Q("15 mm")))
sketch6.addConstraint(Sketcher.Constraint("DistanceY", 2, 3, 10, 3, Q("31 mm")))
sketch6.addConstraint(Sketcher.Constraint("DistanceY", 0, 1, 0, 2, Q("2.75 mm")))
sketch6.addConstraint(Sketcher.Constraint("DistanceX", 3, 1, 3, 2, Q("2.483927 mm")))
pad5 = body.newObject("PartDesign::Pad", "Pad004")
pad5.Profile = sketch6
pad5.Length = 2

# Sketch on XY plane
sketch7 = body.newObject("Sketcher::SketchObject", "Sketch006")
sketch7.AttachmentSupport = (doc.getObject("XY_Plane"), [""])
sketch7.MapMode = "FlatFace"
sketch7.AttachmentOffset = App.Placement(App.Vector(0, 0, 8), App.Rotation())
sketch7.addGeometry(Part.ArcOfCircle(Part.Circle(App.Vector(17, 0, 0), App.Vector(0, 0, 1), 2.8), math.radians(25), math.radians(335)), False)
sketch7.addGeometry(Part.LineSegment(App.Vector(19.5, -1.1, 0), App.Vector(19.5, 1.1, 0)), False)
sketch7.addGeometry(Part.Circle(App.Vector(17, 0, 0), App.Vector(0, 0, 1), 1.8), False)
sketch7.addConstraint(Sketcher.Constraint("Coincident", 0, 1, 1, 2))
sketch7.addConstraint(Sketcher.Constraint("Coincident", 1, 1, 0, 2))
sketch7.addConstraint(Sketcher.Constraint("Vertical", 1))
sketch7.addConstraint(Sketcher.Constraint("Coincident", 2, 3, 0, 3))
sketch7.addConstraint(Sketcher.Constraint("PointOnObject", 0, 3, -1))
sketch7.addConstraint(Sketcher.Constraint("Diameter", 2, Q("3.5 mm")))
sketch7.addConstraint(Sketcher.Constraint("Radius", 0, Q("2.75 mm")))
sketch7.addConstraint(Sketcher.Constraint("DistanceX", -1, 1, 0, 3, Q("17 mm")))
sketch7.addConstraint(Sketcher.Constraint("DistanceX", -1, 1, 0, 1, Q("19.5 mm")))
pad6 = body.newObject("PartDesign::Pad", "Pad005")
pad6.Profile = sketch7
pad6.Length = 0.5
pad6.Reversed = True

# Sketch on XY plane
sketch8 = body.newObject("Sketcher::SketchObject", "Sketch007")
sketch8.AttachmentSupport = (doc.getObject("XY_Plane"), [""])
sketch8.MapMode = "FlatFace"
sketch8.AttachmentOffset = App.Placement(App.Vector(0, 0, 10), App.Rotation())
add_polygon(sketch8, [(6, 9.5), (6, 7.5), (15, 7.5), (15, 9.5)])  # lines 0-3
add_polygon(sketch8, [(6, 4.5), (6, 2.5), (15.27, 2.5), (15.41, 2.75), (18.59, 2.75), (18.73, 2.5), (19.5, 2.5), (19.5, 4.5)])  # lines 4-11
add_polygon(sketch8, [(6, -4.5), (19.5, -4.5), (19.5, -2.5), (18.73, -2.5), (18.59, -2.75), (15.41, -2.75), (15.27, -2.5), (6, -2.5)])  # lines 12-19
add_polygon(sketch8, [(6, -7.5), (6, -9.5), (15, -9.5), (15, -7.5)])  # lines 20-23
sketch8.addConstraint(Sketcher.Constraint("Vertical", 0))
sketch8.addConstraint(Sketcher.Constraint("Horizontal", 1))
sketch8.addConstraint(Sketcher.Constraint("Vertical", 2))
sketch8.addConstraint(Sketcher.Constraint("Horizontal", 3))
sketch8.addConstraint(Sketcher.Constraint("Vertical", 4))
sketch8.addConstraint(Sketcher.Constraint("Horizontal", 5))
sketch8.addConstraint(Sketcher.Constraint("Horizontal", 7))
sketch8.addConstraint(Sketcher.Constraint("Horizontal", 9))
sketch8.addConstraint(Sketcher.Constraint("Vertical", 10))
sketch8.addConstraint(Sketcher.Constraint("Horizontal", 11))
sketch8.addConstraint(Sketcher.Constraint("Horizontal", 12))
sketch8.addConstraint(Sketcher.Constraint("Vertical", 13))
sketch8.addConstraint(Sketcher.Constraint("Horizontal", 14))
sketch8.addConstraint(Sketcher.Constraint("Horizontal", 16))
sketch8.addConstraint(Sketcher.Constraint("Horizontal", 18))
sketch8.addConstraint(Sketcher.Constraint("Vertical", 19))
sketch8.addConstraint(Sketcher.Constraint("Vertical", 20))
sketch8.addConstraint(Sketcher.Constraint("Horizontal", 21))
sketch8.addConstraint(Sketcher.Constraint("Vertical", 22))
sketch8.addConstraint(Sketcher.Constraint("Horizontal", 23))
sketch8.addConstraint(Sketcher.Constraint("Symmetric", 10, 2, 12, 2, -1))
sketch8.addConstraint(Sketcher.Constraint("Symmetric", 8, 2, 14, 2, -1))
sketch8.addConstraint(Sketcher.Constraint("Symmetric", 7, 2, 15, 2, -1))
sketch8.addConstraint(Sketcher.Constraint("Symmetric", 5, 2, 17, 2, -1))
sketch8.addConstraint(Sketcher.Constraint("Symmetric", 3, 2, 20, 2, -1))
sketch8.addConstraint(Sketcher.Constraint("Symmetric", 1, 2, 22, 2, -1))
sketch8.addConstraint(Sketcher.Constraint("Parallel", 6, 15))
sketch8.addConstraint(Sketcher.Constraint("Parallel", 8, 17))
sketch8.addConstraint(Sketcher.Constraint("Horizontal", 5, 2, 8, 2))
sketch8.addConstraint(Sketcher.Constraint("Vertical", 3, 2, 4, 2))
sketch8.addConstraint(Sketcher.Constraint("Vertical", 11, 2, 18, 2))
sketch8.addConstraint(Sketcher.Constraint("Equal", 2, 4))
sketch8.addConstraint(Sketcher.Constraint("DistanceX", 1, 1, 1, 2, Q("9 mm")))
sketch8.addConstraint(Sketcher.Constraint("DistanceY", 0, 2, 0, 1, Q("2 mm")))
sketch8.addConstraint(Sketcher.Constraint("Angle", 6, Q("60 deg")))
sketch8.addConstraint(Sketcher.Constraint("DistanceX", 11, 2, 11, 1, Q("13.5 mm")))
sketch8.addConstraint(Sketcher.Constraint("DistanceX", -1, 1, 0, 2, Q("6 mm")))
sketch8.addConstraint(Sketcher.Constraint("DistanceY", 4, 2, 0, 2, Q("5 mm")))
sketch8.addConstraint(Sketcher.Constraint("DistanceY", 12, 2, 9, 2, Q("7 mm")))
sketch8.addConstraint(Sketcher.Constraint("DistanceY", -1, 1, 6, 2, Q("2.75 mm")))
sketch8.addConstraint(Sketcher.Constraint("DistanceX", 5, 1, 5, 2, Q("9.267949 mm")))
sketch8.addConstraint(Sketcher.Constraint("DistanceX", 9, 1, 9, 2, Q("0.767949 mm")))
pad7 = body.newObject("PartDesign::Pad", "Pad006")
pad7.Profile = sketch8
pad7.Length = 2

# Sketch on YZ plane
sketch9 = body.newObject("Sketcher::SketchObject", "Sketch008")
sketch9.AttachmentSupport = (doc.getObject("YZ_Plane"), [""])
sketch9.MapMode = "FlatFace"
sketch9.addGeometry(Part.Circle(App.Vector(22, 5, 0), App.Vector(0, 0, 1), 2), False)
sketch9.addGeometry(Part.Circle(App.Vector(-22, 5, 0), App.Vector(0, 0, 1), 2), False)
sketch9.addConstraint(Sketcher.Constraint("Equal", 0, 1))
sketch9.addConstraint(Sketcher.Constraint("Symmetric", 0, 3, 1, 3, -2))
sketch9.addConstraint(Sketcher.Constraint("Diameter", 0, Q("4 mm")))
sketch9.addConstraint(Sketcher.Constraint("DistanceX", -1, 1, 0, 3, Q("22 mm")))
sketch9.addConstraint(Sketcher.Constraint("DistanceY", -1, 1, 0, 3, Q("5 mm")))
pocket2 = body.newObject("PartDesign::Pocket", "Pocket001")
pocket2.Profile = sketch9
pocket2.Length = 25
pocket2.Reversed = True

# Sketch on XY plane
sketch10 = body.newObject("Sketcher::SketchObject", "Sketch009")
sketch10.AttachmentSupport = (doc.getObject("XY_Plane"), [""])
sketch10.MapMode = "FlatFace"
sketch10.addGeometry(Part.ArcOfCircle(Part.Circle(App.Vector(17, 0, 0), App.Vector(0, 0, 1), 2.7), math.radians(-65), math.radians(-25)), False)
sketch10.addGeometry(Part.ArcOfCircle(Part.Circle(App.Vector(17, 0, 0), App.Vector(0, 0, 1), 2.8), math.radians(-115), math.radians(-65)), False)
sketch10.addGeometry(Part.ArcOfCircle(Part.Circle(App.Vector(17, 0, 0), App.Vector(0, 0, 1), 2.8), math.radians(115), math.radians(245)), False)
sketch10.addGeometry(Part.ArcOfCircle(Part.Circle(App.Vector(17, 0, 0), App.Vector(0, 0, 1), 2.8), math.radians(65), math.radians(115)), False)
sketch10.addGeometry(Part.ArcOfCircle(Part.Circle(App.Vector(17, 0, 0), App.Vector(0, 0, 1), 2.7), math.radians(25), math.radians(65)), False)
sketch10.addGeometry(Part.LineSegment(App.Vector(19.5, 1.1, 0), App.Vector(19.5, -1.1, 0)), False)
sketch10.addGeometry(Part.Circle(App.Vector(17, 0, 0), App.Vector(0, 0, 1), 1.8), False)
sketch10.addConstraint(Sketcher.Constraint("Tangent", 0, 1, 1, 2))
sketch10.addConstraint(Sketcher.Constraint("Tangent", 1, 1, 2, 2))
sketch10.addConstraint(Sketcher.Constraint("Tangent", 2, 1, 3, 2))
sketch10.addConstraint(Sketcher.Constraint("Tangent", 3, 1, 4, 2))
sketch10.addConstraint(Sketcher.Constraint("Coincident", 4, 1, 5, 1))
sketch10.addConstraint(Sketcher.Constraint("Coincident", 5, 2, 0, 2))
sketch10.addConstraint(Sketcher.Constraint("Vertical", 5))
sketch10.addConstraint(Sketcher.Constraint("Coincident", 2, 3, 0, 3))
sketch10.addConstraint(Sketcher.Constraint("Coincident", 4, 3, 0, 3))
sketch10.addConstraint(Sketcher.Constraint("Coincident", 6, 3, 0, 3))
sketch10.addConstraint(Sketcher.Constraint("Symmetric", 1, 1, 2, 1, -1))
sketch10.addConstraint(Sketcher.Constraint("Horizontal", 0, 1, 1, 1))
sketch10.addConstraint(Sketcher.Constraint("Horizontal", 2, 1, 3, 1))
sketch10.addConstraint(Sketcher.Constraint("Diameter", 6, Q("3.5 mm")))
sketch10.addConstraint(Sketcher.Constraint("Radius", 0, Q("2.75 mm")))
sketch10.addConstraint(Sketcher.Constraint("DistanceX", -1, 1, 0, 3, Q("17 mm")))
sketch10.addConstraint(Sketcher.Constraint("DistanceY", 0, 1, -1, 1, Q("2.5 mm")))
sketch10.addConstraint(Sketcher.Constraint("DistanceX", -1, 1, 4, 1, Q("19.5 mm")))
pocket3 = body.newObject("PartDesign::Pocket", "Pocket002")
pocket3.Profile = sketch10
pocket3.Length = 1
pocket3.Reversed = True

# Sketch on XY plane
sketch11 = body.newObject("Sketcher::SketchObject", "Sketch010")
sketch11.AttachmentSupport = (doc.getObject("XY_Plane"), [""])
sketch11.MapMode = "FlatFace"
sketch11.AttachmentOffset = App.Placement(App.Vector(0, 0, 8), App.Rotation())
add_polygon(sketch11, [(0, -13), (0, -14), (6, -14), (6, -13)])  # lines 0-3
add_polygon(sketch11, [(0, 14), (0, 13), (6, 13), (6, 14)])  # lines 4-7
sketch11.addConstraint(Sketcher.Constraint("Vertical", 0))
sketch11.addConstraint(Sketcher.Constraint("Horizontal", 1))
sketch11.addConstraint(Sketcher.Constraint("Vertical", 2))
sketch11.addConstraint(Sketcher.Constraint("Horizontal", 3))
sketch11.addConstraint(Sketcher.Constraint("Vertical", 4))
sketch11.addConstraint(Sketcher.Constraint("Horizontal", 5))
sketch11.addConstraint(Sketcher.Constraint("Vertical", 6))
sketch11.addConstraint(Sketcher.Constraint("Horizontal", 7))
sketch11.addConstraint(Sketcher.Constraint("Symmetric", 3, 2, 4, 2, -1, 1))
sketch11.addConstraint(Sketcher.Constraint("Symmetric", 1, 2, 6, 2, -1))
sketch11.addConstraint(Sketcher.Constraint("PointOnObject", 0, 2, -2))
sketch11.addConstraint(Sketcher.Constraint("DistanceX", 1, 1, 1, 2, Q("6 mm")))
sketch11.addConstraint(Sketcher.Constraint("DistanceY", 0, 2, 0, 1, Q("1 mm")))
sketch11.addConstraint(Sketcher.Constraint("DistanceY", 0, 2, -1, 1, Q("14 mm")))
pocket4 = body.newObject("PartDesign::Pocket", "Pocket003")
pocket4.Profile = sketch11
pocket4.Length = 30
pocket4.Midplane = True

doc.recompute()
